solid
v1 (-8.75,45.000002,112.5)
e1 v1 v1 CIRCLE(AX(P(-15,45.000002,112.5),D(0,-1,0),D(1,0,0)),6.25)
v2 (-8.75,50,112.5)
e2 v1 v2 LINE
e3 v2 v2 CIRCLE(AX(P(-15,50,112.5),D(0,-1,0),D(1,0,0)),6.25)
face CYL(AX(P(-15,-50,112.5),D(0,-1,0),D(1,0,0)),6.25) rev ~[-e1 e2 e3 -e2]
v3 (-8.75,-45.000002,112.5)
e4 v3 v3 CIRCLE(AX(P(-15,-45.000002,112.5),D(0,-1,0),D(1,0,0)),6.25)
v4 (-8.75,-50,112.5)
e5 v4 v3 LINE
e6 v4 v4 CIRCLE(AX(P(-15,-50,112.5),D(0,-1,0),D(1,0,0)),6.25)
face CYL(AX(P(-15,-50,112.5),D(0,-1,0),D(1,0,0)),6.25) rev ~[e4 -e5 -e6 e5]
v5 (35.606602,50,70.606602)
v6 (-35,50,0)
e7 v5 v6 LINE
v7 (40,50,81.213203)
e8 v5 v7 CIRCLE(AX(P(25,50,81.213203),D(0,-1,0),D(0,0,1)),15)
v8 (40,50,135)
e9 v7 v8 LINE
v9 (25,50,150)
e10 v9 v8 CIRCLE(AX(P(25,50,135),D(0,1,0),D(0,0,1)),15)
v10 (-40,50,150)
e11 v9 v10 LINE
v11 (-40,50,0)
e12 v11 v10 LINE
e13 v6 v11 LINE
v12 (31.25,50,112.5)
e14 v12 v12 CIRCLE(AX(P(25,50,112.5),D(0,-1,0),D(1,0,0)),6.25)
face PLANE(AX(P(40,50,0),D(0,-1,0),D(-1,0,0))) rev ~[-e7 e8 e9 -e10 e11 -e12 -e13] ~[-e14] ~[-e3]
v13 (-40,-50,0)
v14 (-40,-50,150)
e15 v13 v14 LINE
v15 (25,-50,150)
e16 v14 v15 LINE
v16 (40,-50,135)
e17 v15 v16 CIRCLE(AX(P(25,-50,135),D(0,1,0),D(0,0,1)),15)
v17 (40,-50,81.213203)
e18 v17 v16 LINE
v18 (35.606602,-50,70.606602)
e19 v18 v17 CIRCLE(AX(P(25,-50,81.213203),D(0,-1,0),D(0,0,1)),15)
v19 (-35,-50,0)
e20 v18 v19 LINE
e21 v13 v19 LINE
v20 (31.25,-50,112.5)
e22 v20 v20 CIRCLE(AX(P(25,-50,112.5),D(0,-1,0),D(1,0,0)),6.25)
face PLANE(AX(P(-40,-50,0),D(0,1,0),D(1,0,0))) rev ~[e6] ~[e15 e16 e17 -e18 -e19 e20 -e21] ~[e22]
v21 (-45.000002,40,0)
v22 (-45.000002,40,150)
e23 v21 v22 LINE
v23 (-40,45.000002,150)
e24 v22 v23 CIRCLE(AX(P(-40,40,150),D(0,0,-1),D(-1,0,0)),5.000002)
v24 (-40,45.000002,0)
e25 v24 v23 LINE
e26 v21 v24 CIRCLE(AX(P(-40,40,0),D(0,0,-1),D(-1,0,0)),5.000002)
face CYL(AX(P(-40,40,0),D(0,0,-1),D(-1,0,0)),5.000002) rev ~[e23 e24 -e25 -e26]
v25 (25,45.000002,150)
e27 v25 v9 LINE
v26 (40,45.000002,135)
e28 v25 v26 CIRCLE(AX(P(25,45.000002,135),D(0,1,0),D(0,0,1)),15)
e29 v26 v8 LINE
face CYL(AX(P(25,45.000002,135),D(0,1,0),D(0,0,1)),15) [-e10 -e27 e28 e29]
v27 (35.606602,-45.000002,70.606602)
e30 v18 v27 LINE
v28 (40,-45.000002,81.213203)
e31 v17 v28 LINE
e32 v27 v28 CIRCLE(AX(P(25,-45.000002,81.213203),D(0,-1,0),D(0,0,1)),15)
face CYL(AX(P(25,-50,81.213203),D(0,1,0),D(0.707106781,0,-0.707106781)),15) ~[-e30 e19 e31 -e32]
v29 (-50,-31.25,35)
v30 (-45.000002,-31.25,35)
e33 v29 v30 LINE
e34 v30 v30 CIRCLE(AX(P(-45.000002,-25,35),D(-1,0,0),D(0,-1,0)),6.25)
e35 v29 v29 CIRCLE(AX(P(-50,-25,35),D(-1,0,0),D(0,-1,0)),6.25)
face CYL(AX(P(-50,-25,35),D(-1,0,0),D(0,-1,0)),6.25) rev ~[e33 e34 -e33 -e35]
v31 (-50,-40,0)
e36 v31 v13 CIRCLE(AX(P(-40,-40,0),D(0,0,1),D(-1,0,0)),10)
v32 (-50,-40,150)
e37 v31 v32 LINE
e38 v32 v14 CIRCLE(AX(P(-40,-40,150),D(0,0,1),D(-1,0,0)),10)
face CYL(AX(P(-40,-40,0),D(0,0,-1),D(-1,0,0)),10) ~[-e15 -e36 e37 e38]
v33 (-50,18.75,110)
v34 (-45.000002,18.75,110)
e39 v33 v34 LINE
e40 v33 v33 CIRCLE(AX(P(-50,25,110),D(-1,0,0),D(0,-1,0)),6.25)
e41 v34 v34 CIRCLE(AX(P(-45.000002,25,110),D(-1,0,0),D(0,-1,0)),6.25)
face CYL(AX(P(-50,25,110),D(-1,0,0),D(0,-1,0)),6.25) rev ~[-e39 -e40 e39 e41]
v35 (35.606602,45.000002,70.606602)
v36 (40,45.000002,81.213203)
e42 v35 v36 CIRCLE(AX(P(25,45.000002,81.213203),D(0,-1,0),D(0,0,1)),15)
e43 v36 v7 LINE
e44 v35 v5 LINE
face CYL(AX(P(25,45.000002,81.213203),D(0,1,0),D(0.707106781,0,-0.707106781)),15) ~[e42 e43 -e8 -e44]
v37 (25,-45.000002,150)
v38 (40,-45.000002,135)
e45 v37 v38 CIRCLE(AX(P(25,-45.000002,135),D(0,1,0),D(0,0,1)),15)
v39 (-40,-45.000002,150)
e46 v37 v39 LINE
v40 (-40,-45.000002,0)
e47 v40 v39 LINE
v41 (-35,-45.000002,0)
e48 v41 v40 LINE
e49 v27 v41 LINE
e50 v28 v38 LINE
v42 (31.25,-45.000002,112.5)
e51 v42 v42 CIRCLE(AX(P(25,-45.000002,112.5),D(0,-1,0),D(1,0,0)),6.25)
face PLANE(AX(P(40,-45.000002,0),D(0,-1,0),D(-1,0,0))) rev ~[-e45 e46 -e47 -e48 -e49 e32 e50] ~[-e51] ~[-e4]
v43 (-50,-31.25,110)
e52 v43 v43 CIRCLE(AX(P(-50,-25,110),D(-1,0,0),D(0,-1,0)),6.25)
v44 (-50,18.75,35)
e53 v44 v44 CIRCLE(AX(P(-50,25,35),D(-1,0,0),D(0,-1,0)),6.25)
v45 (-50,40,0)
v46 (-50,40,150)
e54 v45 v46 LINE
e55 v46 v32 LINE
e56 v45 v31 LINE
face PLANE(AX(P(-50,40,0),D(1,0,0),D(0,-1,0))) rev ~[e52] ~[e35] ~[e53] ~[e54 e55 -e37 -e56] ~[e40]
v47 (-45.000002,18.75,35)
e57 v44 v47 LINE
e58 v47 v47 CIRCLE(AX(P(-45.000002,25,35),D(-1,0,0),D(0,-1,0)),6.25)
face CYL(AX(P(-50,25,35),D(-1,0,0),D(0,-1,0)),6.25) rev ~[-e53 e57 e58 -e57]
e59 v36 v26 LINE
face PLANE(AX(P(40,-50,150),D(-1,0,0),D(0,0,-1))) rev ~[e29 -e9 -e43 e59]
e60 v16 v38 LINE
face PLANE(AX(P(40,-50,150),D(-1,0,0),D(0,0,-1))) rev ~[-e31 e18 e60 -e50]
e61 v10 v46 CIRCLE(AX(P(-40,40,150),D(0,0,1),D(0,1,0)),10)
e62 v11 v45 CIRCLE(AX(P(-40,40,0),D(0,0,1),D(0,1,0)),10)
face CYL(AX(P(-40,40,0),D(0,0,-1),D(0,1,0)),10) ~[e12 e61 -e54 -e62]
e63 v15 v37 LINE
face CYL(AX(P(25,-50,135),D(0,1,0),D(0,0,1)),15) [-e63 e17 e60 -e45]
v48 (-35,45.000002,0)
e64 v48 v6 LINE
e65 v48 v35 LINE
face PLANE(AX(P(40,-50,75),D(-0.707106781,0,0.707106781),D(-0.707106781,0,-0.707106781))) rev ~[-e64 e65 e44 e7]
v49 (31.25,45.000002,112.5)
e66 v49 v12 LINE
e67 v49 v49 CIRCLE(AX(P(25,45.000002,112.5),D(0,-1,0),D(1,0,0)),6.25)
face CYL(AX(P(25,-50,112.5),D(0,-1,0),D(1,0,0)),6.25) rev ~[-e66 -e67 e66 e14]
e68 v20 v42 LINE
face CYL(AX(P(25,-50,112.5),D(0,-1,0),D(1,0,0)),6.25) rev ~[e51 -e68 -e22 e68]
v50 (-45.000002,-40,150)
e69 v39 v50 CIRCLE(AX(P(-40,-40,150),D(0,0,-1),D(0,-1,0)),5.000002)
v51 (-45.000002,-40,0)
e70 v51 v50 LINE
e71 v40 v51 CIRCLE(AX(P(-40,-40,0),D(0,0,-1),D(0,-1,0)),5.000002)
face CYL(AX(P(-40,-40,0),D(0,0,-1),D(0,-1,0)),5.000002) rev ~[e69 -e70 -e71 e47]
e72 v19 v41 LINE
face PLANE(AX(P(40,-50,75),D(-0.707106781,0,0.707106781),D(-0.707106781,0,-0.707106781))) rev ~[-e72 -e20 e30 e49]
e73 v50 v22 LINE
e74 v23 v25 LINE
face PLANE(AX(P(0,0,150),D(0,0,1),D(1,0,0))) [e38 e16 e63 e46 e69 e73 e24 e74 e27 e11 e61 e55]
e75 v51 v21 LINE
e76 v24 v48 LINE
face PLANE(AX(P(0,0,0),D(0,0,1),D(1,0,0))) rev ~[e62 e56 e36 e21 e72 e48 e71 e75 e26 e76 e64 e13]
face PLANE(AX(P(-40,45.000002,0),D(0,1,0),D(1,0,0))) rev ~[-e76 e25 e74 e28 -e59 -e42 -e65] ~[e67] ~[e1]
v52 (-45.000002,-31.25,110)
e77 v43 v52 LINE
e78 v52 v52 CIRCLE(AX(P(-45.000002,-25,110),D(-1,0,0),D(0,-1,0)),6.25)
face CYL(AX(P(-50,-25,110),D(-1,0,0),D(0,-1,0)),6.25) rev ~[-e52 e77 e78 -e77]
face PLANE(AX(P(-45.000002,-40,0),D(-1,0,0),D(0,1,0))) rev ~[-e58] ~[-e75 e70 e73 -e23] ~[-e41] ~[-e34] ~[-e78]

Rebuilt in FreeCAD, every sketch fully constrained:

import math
import FreeCAD as App
import Part
import Sketcher


def edges_at(feature, points):
    """Names of the edges that pass closest to the given points."""
    edges = feature.Shape.Edges
    near = lambda p: min(range(len(edges)), key=lambda i: edges[i].distToShape(Part.Vertex(*p))[0])
    return sorted({f"Edge{near(p) + 1}" for p in points})


def add_polygon(sketch, points):
    """Adds a closed chain of lines whose ends are joined by coincident constraints."""
    first, n = sketch.GeometryCount, len(points)
    for a, b in zip(points, points[1:] + points[:1]):
        sketch.addGeometry(Part.LineSegment(App.Vector(*a, 0), App.Vector(*b, 0)), False)
    for i in range(n):
        sketch.addConstraint(Sketcher.Constraint("Coincident", first + i, 2, first + (i + 1) % n, 1))

doc = App.newDocument("Part")
params = doc.addObject("Spreadsheet::Sheet", "Params")
for row, (alias, value) in enumerate([
    ("sketch1_radius", "10 mm"),
    ("sketch1_radius2", "5.000002 mm"),
    ("sketch1_width", "80 mm"),
    ("pad1_length", "150 mm"),
    ("sketch2_diameter", "12.5 mm"),
    ("sketch2_width", "10 mm"),
    ("sketch2_width2", "85 mm"),
    ("sketch2_height", "75 mm"),
    ("sketch2_height2", "150 mm"),
    ("sketch3_diameter", "12.5 mm"),
    ("fillet_radius", "15 mm"),
], start=1):
    params.set(f"A{row}", alias)
    params.set(f"B{row}", "=" + value)
    params.setAlias(f"B{row}", alias)

body = doc.addObject("PartDesign::Body", "Body")

sketch1 = doc.addObject("Sketcher::SketchObject", "Sketch")
body.addObject(sketch1)
sketch1.AttachmentSupport = (doc.XY_Plane, [""])
sketch1.MapMode = "FlatFace"
sketch1.addGeometry([
    Part.ArcOfCircle(Part.Circle(App.Vector(40, 40, 0), App.Vector(0, 0, 1), 10), math.radians(0), math.radians(90)),
    Part.LineSegment(App.Vector(40, 50, 0), App.Vector(-40, 50, 0)),
    Part.ArcOfCircle(Part.Circle(App.Vector(-40, 40, 0), App.Vector(0, 0, 1), 10), math.radians(90), math.radians(180)),
    Part.LineSegment(App.Vector(-50, 40, 0), App.Vector(-50, -40, 0)),
    Part.ArcOfCircle(Part.Circle(App.Vector(-40, -40, 0), App.Vector(0, 0, 1), 10), math.radians(180), math.radians(270)),
    Part.LineSegment(App.Vector(-40, -50, 0), App.Vector(40, -50, 0)),
    Part.ArcOfCircle(Part.Circle(App.Vector(40, -40, 0), App.Vector(0, 0, 1), 10), math.radians(-90), math.radians(0)),
    Part.LineSegment(App.Vector(50, -40, 0), App.Vector(50, 40, 0)),
    Part.LineSegment(App.Vector(-40, 45.000002, 0), App.Vector(40, 45.000002, 0)),
    Part.ArcOfCircle(Part.Circle(App.Vector(40, 40, 0), App.Vector(0, 0, 1), 5.000002), math.radians(0), math.radians(90)),
    Part.LineSegment(App.Vector(45.000002, 40, 0), App.Vector(45.000002, -40, 0)),
    Part.ArcOfCircle(Part.Circle(App.Vector(40, -40, 0), App.Vector(0, 0, 1), 5.000002), math.radians(-90), math.radians(0)),
    Part.LineSegment(App.Vector(40, -45.000002, 0), App.Vector(-40, -45.000002, 0)),
    Part.ArcOfCircle(Part.Circle(App.Vector(-40, -40, 0), App.Vector(0, 0, 1), 5.000002), math.radians(180), math.radians(270)),
    Part.LineSegment(App.Vector(-45.000002, -40, 0), App.Vector(-45.000002, 40, 0)),
    Part.ArcOfCircle(Part.Circle(App.Vector(-40, 40, 0), App.Vector(0, 0, 1), 5.000002), math.radians(90), math.radians(180)),
], False)
sketch1.addConstraint([
    Sketcher.Constraint("Tangent", 0, 2, 1, 1),
    Sketcher.Constraint("Tangent", 1, 2, 2, 1),
    Sketcher.Constraint("Tangent", 2, 2, 3, 1),
    Sketcher.Constraint("Tangent", 3, 2, 4, 1),
    Sketcher.Constraint("Tangent", 4, 2, 5, 1),
    Sketcher.Constraint("Tangent", 5, 2, 6, 1),
    Sketcher.Constraint("Tangent", 6, 2, 7, 1),
    Sketcher.Constraint("Tangent", 7, 2, 0, 1),
    Sketcher.Constraint("Tangent", 8, 2, 9, 2),
    Sketcher.Constraint("Tangent", 9, 1, 10, 1),
    Sketcher.Constraint("Tangent", 10, 2, 11, 2),
    Sketcher.Constraint("Tangent", 11, 1, 12, 1),
    Sketcher.Constraint("Tangent", 12, 2, 13, 2),
    Sketcher.Constraint("Tangent", 13, 1, 14, 1),
    Sketcher.Constraint("Tangent", 14, 2, 15, 2),
    Sketcher.Constraint("Tangent", 15, 1, 8, 1),
    Sketcher.Constraint("Horizontal", 1),
    Sketcher.Constraint("Vertical", 3),
    Sketcher.Constraint("Horizontal", 5),
    Sketcher.Constraint("Vertical", 7),
    Sketcher.Constraint("Horizontal", 8),
    Sketcher.Constraint("Vertical", 10),
    Sketcher.Constraint("Horizontal", 12),
    Sketcher.Constraint("Vertical", 14),
    Sketcher.Constraint("Coincident", 9, 3, 0, 3),
    Sketcher.Constraint("Coincident", 11, 3, 6, 3),
    Sketcher.Constraint("Coincident", 13, 3, 4, 3),
    Sketcher.Constraint("Equal", 0, 2),
    Sketcher.Constraint("Equal", 2, 4),
    Sketcher.Constraint("Equal", 4, 6),
    Sketcher.Constraint("Equal", 13, 15),
    Sketcher.Constraint("Symmetric", 0, 3, 4, 3, -1, 1),
    Sketcher.Constraint("Equal", 12, 3),
    Sketcher.Constraint("Radius", 0, 10.0),
    Sketcher.Constraint("Radius", 9, 5.000002),
    Sketcher.Constraint("DistanceX", 1, 2, 1, 1, 80.0),
])
sketch1.setExpression("Constraints[33]", "Params.sketch1_radius")
sketch1.setExpression("Constraints[34]", "Params.sketch1_radius2")
sketch1.setExpression("Constraints[35]", "Params.sketch1_width")
pad1 = doc.addObject("PartDesign::Pad", "Pad")
body.addObject(pad1)
pad1.Profile = sketch1
pad1.setExpression("Length", "Params.pad1_length")

sketch2 = doc.addObject("Sketcher::SketchObject", "Sketch001")
body.addObject(sketch2)
sketch2.AttachmentSupport = (doc.XZ_Plane, [""])
sketch2.MapMode = "FlatFace"
sketch2.AttachmentOffset = App.Placement(App.Vector(0, 0, 50), App.Rotation())
add_polygon(sketch2, [(50, 150), (40, 150), (40, 75), (-35, 0), (50, 0)])
sketch2.addGeometry(Part.Circle(App.Vector(-15, 112.5, 0), App.Vector(0, 0, 1), 6.25), False)
sketch2.addGeometry(Part.Circle(App.Vector(25, 112.5, 0), App.Vector(0, 0, 1), 6.25), False)
sketch2.addConstraint([
    Sketcher.Constraint("Horizontal", 0),
    Sketcher.Constraint("Vertical", 1),
    Sketcher.Constraint("Horizontal", 3),
    Sketcher.Constraint("Vertical", 4),
    Sketcher.Constraint("Equal", 5, 6),
    Sketcher.Constraint("PointOnObject", 2, 2, -1),
    Sketcher.Constraint("Horizontal", 5, 3, 6, 3),
    Sketcher.Constraint("Diameter", 5, 12.5),
    Sketcher.Constraint("DistanceX", 0, 2, 0, 1, 10.0),
    Sketcher.Constraint("DistanceX", 3, 1, 3, 2, 85.0),
    Sketcher.Constraint("DistanceY", 1, 2, 1, 1, 75.0),
    Sketcher.Constraint("DistanceY", 4, 1, 4, 2, 150.0),
    Sketcher.Constraint("DistanceX", 5, 3, -1, 1, 15.0),
    Sketcher.Constraint("DistanceX", -1, 1, 6, 3, 25.0),
    Sketcher.Constraint("DistanceX", -1, 1, 0, 2, 40.0),
    Sketcher.Constraint("DistanceY", -1, 1, 5, 3, 112.5),
])
sketch2.setExpression("Constraints[12]", "Params.sketch2_diameter")
sketch2.setExpression("Constraints[13]", "Params.sketch2_width")
sketch2.setExpression("Constraints[14]", "Params.sketch2_width2")
sketch2.setExpression("Constraints[15]", "Params.sketch2_height")
sketch2.setExpression("Constraints[16]", "Params.sketch2_height2")
pocket1 = doc.addObject("PartDesign::Pocket", "Pocket")
body.addObject(pocket1)
pocket1.Profile = sketch2
pocket1.Type = "ThroughAll"

sketch3 = doc.addObject("Sketcher::SketchObject", "Sketch002")
body.addObject(sketch3)
sketch3.AttachmentSupport = (doc.YZ_Plane, [""])
sketch3.MapMode = "FlatFace"
sketch3.AttachmentOffset = App.Placement(App.Vector(0, 0, -50), App.Rotation())
sketch3.addGeometry([
    Part.Circle(App.Vector(25, 110, 0), App.Vector(0, 0, 1), 6.25),
    Part.Circle(App.Vector(25, 35, 0), App.Vector(0, 0, 1), 6.25),
    Part.Circle(App.Vector(-25, 35, 0), App.Vector(0, 0, 1), 6.25),
    Part.Circle(App.Vector(-25, 110, 0), App.Vector(0, 0, 1), 6.25),
], False)
sketch3.addConstraint([
    Sketcher.Constraint("Equal", 0, 1),
    Sketcher.Constraint("Equal", 1, 2),
    Sketcher.Constraint("Equal", 2, 3),
    Sketcher.Constraint("Symmetric", 1, 3, 2, 3, -2),
    Sketcher.Constraint("Symmetric", 0, 3, 3, 3, -2),
    Sketcher.Constraint("Vertical", 0, 3, 1, 3),
    Sketcher.Constraint("Diameter", 0, 12.5),
    Sketcher.Constraint("DistanceX", -1, 1, 0, 3, 25.0),
    Sketcher.Constraint("DistanceY", -1, 1, 0, 3, 110.0),
    Sketcher.Constraint("DistanceY", -1, 1, 1, 3, 35.0),
])
sketch3.setExpression("Constraints[6]", "Params.sketch3_diameter")
pocket2 = doc.addObject("PartDesign::Pocket", "Pocket001")
body.addObject(pocket2)
pocket2.Profile = sketch3
pocket2.Type = "ThroughAll"
pocket2.Reversed = True
doc.recompute()

fillet = doc.addObject("PartDesign::Fillet", "Fillet")
body.addObject(fillet)
fillet.Base = (pocket2, edges_at(pocket2, [
    (40, -47.5, 75),
    (40, -47.5, 150),
    (40, 47.5, 150),
    (40, 47.5, 75),
]))
fillet.setExpression("Radius", "Params.fillet_radius")

doc.recompute()
